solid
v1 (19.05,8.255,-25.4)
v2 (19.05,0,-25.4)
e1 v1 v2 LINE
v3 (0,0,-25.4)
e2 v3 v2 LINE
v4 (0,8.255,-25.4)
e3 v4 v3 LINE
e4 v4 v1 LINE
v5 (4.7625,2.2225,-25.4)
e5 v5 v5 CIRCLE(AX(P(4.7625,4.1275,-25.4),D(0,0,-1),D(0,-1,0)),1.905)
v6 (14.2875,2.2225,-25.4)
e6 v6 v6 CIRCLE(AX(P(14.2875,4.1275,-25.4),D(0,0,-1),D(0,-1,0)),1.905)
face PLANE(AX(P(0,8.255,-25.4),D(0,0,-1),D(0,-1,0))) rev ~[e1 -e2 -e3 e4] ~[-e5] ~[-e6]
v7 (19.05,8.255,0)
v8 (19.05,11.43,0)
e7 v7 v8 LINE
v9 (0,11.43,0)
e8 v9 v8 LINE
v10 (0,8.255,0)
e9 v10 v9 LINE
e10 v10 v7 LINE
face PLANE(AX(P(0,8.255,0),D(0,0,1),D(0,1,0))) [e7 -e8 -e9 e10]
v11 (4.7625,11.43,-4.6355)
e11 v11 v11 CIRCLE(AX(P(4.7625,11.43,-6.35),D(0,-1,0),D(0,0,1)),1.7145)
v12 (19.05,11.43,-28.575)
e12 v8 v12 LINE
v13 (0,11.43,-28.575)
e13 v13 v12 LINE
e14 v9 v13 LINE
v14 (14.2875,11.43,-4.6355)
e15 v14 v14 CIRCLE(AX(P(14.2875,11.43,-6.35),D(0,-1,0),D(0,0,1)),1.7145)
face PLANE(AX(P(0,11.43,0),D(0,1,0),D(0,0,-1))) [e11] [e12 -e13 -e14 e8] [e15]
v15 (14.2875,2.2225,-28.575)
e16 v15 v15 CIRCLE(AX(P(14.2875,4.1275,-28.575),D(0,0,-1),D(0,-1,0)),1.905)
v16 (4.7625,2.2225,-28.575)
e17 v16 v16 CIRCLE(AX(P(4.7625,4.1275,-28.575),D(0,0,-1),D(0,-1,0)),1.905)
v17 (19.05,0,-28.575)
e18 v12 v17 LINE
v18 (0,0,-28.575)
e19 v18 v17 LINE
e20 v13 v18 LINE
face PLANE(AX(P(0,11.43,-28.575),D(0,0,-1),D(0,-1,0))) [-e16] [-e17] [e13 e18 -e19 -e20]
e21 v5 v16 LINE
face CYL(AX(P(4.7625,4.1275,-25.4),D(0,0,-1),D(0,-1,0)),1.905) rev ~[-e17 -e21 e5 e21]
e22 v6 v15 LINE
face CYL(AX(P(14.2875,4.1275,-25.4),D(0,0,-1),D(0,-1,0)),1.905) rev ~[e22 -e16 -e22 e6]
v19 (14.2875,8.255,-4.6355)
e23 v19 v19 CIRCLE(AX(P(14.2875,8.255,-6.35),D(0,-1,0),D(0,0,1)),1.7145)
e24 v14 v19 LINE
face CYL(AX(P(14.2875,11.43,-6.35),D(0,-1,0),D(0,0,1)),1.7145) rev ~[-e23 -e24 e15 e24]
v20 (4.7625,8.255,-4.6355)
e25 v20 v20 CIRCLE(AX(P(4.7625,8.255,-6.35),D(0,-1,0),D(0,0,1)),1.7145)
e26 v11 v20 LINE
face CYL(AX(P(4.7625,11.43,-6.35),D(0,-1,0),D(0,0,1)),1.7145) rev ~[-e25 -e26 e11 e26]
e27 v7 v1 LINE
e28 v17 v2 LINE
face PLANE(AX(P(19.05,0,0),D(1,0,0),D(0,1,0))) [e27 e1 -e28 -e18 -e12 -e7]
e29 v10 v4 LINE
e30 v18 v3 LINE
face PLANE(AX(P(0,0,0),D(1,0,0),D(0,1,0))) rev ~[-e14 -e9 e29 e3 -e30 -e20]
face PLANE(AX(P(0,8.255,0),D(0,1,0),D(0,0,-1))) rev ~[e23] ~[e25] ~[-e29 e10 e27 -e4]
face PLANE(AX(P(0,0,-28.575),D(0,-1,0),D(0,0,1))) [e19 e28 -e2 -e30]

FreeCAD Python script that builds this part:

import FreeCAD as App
import Part
import Sketcher
Q = App.Units.Quantity

doc = App.newDocument("Part")
body = doc.addObject("PartDesign::Body", "Body")

# Sketch on YZ plane
sketch1 = doc.addObject("Sketcher::SketchObject", "Sketch")
body.addObject(sketch1)
sketch1.AttachmentSupport = (doc.YZ_Plane, [""])
sketch1.MapMode = "FlatFace"
sketch1.addGeometry(Part.LineSegment(App.Vector(11.4, 0, 0), App.Vector(8.3, 0, 0)), False)
sketch1.addGeometry(Part.LineSegment(App.Vector(8.3, 0, 0), App.Vector(8.3, -25.4, 0)), False)
sketch1.addGeometry(Part.LineSegment(App.Vector(8.3, -25.4, 0), App.Vector(0, -25.4, 0)), False)
sketch1.addGeometry(Part.LineSegment(App.Vector(0, -25.4, 0), App.Vector(0, -28.6, 0)), False)
sketch1.addGeometry(Part.LineSegment(App.Vector(0, -28.6, 0), App.Vector(11.4, -28.6, 0)), False)
sketch1.addGeometry(Part.LineSegment(App.Vector(11.4, -28.6, 0), App.Vector(11.4, 0, 0)), False)
sketch1.addConstraint(Sketcher.Constraint("Coincident", 0, 2, 1, 1))
sketch1.addConstraint(Sketcher.Constraint("Coincident", 1, 2, 2, 1))
sketch1.addConstraint(Sketcher.Constraint("Coincident", 2, 2, 3, 1))
sketch1.addConstraint(Sketcher.Constraint("Coincident", 3, 2, 4, 1))
sketch1.addConstraint(Sketcher.Constraint("Coincident", 4, 2, 5, 1))
sketch1.addConstraint(Sketcher.Constraint("Coincident", 5, 2, 0, 1))
sketch1.addConstraint(Sketcher.Constraint("Horizontal", 0))
sketch1.addConstraint(Sketcher.Constraint("Vertical", 1))
sketch1.addConstraint(Sketcher.Constraint("Horizontal", 2))
sketch1.addConstraint(Sketcher.Constraint("Vertical", 3))
sketch1.addConstraint(Sketcher.Constraint("Horizontal", 4))
sketch1.addConstraint(Sketcher.Constraint("Vertical", 5))
sketch1.addConstraint(Sketcher.Constraint("PointOnObject", 0, 2, -1))
sketch1.addConstraint(Sketcher.Constraint("PointOnObject", 2, 2, -2))
sketch1.addConstraint(Sketcher.Constraint("Equal", 0, 3))
sketch1.addConstraint(Sketcher.Constraint("DistanceY", 1, 2, 1, 1, Q("1 in")))
sketch1.addConstraint(Sketcher.Constraint("DistanceX", 4, 1, 4, 2, Q("0.45 in")))
sketch1.addConstraint(Sketcher.Constraint("DistanceX", 2, 2, 2, 1, Q("0.325 in")))
pad1 = doc.addObject("PartDesign::Pad", "Pad")
body.addObject(pad1)
pad1.Profile = sketch1
pad1.Length = Q("0.75 in")

# Sketch on XZ plane
sketch2 = doc.addObject("Sketcher::SketchObject", "Sketch001")
body.addObject(sketch2)
sketch2.AttachmentSupport = (doc.XZ_Plane, [""])
sketch2.MapMode = "FlatFace"
sketch2.AttachmentOffset = App.Placement(App.Vector(0, 0, -0.45 * 25.4), App.Rotation())
sketch2.addGeometry(Part.Circle(App.Vector(4.8, -6.3, 0), App.Vector(0, 0, 1), 1.7), False)
sketch2.addGeometry(Part.Circle(App.Vector(14.3, -6.3, 0), App.Vector(0, 0, 1), 1.7), False)
sketch2.addConstraint(Sketcher.Constraint("Equal", 0, 1))
sketch2.addConstraint(Sketcher.Constraint("Horizontal", 0, 3, 1, 3))
sketch2.addConstraint(Sketcher.Constraint("Diameter", 0, Q("0.135 in")))
sketch2.addConstraint(Sketcher.Constraint("DistanceY", 0, 3, -1, 1, Q("0.25 in")))
sketch2.addConstraint(Sketcher.Constraint("DistanceX", -1, 1, 0, 3, Q("0.1875 in")))
sketch2.addConstraint(Sketcher.Constraint("DistanceX", -1, 1, 1, 3, Q("0.5625 in")))
doc.recompute()
hole = doc.addObject("PartDesign::Hole", "Hole")
body.addObject(hole)
hole.Profile = sketch2
hole.ThreadType = "None"
hole.Diameter = Q("0.135 in")
hole.DepthType = "ThroughAll"
hole.Reversed = True

# Sketch on XY plane
sketch3 = doc.addObject("Sketcher::SketchObject", "Sketch002")
body.addObject(sketch3)
sketch3.AttachmentSupport = (doc.XY_Plane, [""])
sketch3.MapMode = "FlatFace"
sketch3.AttachmentOffset = App.Placement(App.Vector(0, 0, -1 * 25.4), App.Rotation())
sketch3.addGeometry(Part.Circle(App.Vector(4.8, 4.1, 0), App.Vector(0, 0, 1), 1.9), False)
sketch3.addGeometry(Part.Circle(App.Vector(14.3, 4.1, 0), App.Vector(0, 0, 1), 1.9), False)
sketch3.addConstraint(Sketcher.Constraint("Equal", 0, 1))
sketch3.addConstraint(Sketcher.Constraint("Horizontal", 0, 3, 1, 3))
sketch3.addConstraint(Sketcher.Constraint("Diameter", 0, Q("0.15 in")))
sketch3.addConstraint(Sketcher.Constraint("DistanceX", -1, 1, 0, 3, Q("0.1875 in")))
sketch3.addConstraint(Sketcher.Constraint("DistanceX", -1, 1, 1, 3, Q("0.5625 in")))
sketch3.addConstraint(Sketcher.Constraint("DistanceY", -1, 1, 0, 3, Q("0.1625 in")))
doc.recompute()
hole2 = doc.addObject("PartDesign::Hole", "Hole001")
body.addObject(hole2)
hole2.Profile = sketch3
hole2.ThreadType = "None"
hole2.Diameter = Q("0.15 in")
hole2.DepthType = "ThroughAll"

doc.recompute()
